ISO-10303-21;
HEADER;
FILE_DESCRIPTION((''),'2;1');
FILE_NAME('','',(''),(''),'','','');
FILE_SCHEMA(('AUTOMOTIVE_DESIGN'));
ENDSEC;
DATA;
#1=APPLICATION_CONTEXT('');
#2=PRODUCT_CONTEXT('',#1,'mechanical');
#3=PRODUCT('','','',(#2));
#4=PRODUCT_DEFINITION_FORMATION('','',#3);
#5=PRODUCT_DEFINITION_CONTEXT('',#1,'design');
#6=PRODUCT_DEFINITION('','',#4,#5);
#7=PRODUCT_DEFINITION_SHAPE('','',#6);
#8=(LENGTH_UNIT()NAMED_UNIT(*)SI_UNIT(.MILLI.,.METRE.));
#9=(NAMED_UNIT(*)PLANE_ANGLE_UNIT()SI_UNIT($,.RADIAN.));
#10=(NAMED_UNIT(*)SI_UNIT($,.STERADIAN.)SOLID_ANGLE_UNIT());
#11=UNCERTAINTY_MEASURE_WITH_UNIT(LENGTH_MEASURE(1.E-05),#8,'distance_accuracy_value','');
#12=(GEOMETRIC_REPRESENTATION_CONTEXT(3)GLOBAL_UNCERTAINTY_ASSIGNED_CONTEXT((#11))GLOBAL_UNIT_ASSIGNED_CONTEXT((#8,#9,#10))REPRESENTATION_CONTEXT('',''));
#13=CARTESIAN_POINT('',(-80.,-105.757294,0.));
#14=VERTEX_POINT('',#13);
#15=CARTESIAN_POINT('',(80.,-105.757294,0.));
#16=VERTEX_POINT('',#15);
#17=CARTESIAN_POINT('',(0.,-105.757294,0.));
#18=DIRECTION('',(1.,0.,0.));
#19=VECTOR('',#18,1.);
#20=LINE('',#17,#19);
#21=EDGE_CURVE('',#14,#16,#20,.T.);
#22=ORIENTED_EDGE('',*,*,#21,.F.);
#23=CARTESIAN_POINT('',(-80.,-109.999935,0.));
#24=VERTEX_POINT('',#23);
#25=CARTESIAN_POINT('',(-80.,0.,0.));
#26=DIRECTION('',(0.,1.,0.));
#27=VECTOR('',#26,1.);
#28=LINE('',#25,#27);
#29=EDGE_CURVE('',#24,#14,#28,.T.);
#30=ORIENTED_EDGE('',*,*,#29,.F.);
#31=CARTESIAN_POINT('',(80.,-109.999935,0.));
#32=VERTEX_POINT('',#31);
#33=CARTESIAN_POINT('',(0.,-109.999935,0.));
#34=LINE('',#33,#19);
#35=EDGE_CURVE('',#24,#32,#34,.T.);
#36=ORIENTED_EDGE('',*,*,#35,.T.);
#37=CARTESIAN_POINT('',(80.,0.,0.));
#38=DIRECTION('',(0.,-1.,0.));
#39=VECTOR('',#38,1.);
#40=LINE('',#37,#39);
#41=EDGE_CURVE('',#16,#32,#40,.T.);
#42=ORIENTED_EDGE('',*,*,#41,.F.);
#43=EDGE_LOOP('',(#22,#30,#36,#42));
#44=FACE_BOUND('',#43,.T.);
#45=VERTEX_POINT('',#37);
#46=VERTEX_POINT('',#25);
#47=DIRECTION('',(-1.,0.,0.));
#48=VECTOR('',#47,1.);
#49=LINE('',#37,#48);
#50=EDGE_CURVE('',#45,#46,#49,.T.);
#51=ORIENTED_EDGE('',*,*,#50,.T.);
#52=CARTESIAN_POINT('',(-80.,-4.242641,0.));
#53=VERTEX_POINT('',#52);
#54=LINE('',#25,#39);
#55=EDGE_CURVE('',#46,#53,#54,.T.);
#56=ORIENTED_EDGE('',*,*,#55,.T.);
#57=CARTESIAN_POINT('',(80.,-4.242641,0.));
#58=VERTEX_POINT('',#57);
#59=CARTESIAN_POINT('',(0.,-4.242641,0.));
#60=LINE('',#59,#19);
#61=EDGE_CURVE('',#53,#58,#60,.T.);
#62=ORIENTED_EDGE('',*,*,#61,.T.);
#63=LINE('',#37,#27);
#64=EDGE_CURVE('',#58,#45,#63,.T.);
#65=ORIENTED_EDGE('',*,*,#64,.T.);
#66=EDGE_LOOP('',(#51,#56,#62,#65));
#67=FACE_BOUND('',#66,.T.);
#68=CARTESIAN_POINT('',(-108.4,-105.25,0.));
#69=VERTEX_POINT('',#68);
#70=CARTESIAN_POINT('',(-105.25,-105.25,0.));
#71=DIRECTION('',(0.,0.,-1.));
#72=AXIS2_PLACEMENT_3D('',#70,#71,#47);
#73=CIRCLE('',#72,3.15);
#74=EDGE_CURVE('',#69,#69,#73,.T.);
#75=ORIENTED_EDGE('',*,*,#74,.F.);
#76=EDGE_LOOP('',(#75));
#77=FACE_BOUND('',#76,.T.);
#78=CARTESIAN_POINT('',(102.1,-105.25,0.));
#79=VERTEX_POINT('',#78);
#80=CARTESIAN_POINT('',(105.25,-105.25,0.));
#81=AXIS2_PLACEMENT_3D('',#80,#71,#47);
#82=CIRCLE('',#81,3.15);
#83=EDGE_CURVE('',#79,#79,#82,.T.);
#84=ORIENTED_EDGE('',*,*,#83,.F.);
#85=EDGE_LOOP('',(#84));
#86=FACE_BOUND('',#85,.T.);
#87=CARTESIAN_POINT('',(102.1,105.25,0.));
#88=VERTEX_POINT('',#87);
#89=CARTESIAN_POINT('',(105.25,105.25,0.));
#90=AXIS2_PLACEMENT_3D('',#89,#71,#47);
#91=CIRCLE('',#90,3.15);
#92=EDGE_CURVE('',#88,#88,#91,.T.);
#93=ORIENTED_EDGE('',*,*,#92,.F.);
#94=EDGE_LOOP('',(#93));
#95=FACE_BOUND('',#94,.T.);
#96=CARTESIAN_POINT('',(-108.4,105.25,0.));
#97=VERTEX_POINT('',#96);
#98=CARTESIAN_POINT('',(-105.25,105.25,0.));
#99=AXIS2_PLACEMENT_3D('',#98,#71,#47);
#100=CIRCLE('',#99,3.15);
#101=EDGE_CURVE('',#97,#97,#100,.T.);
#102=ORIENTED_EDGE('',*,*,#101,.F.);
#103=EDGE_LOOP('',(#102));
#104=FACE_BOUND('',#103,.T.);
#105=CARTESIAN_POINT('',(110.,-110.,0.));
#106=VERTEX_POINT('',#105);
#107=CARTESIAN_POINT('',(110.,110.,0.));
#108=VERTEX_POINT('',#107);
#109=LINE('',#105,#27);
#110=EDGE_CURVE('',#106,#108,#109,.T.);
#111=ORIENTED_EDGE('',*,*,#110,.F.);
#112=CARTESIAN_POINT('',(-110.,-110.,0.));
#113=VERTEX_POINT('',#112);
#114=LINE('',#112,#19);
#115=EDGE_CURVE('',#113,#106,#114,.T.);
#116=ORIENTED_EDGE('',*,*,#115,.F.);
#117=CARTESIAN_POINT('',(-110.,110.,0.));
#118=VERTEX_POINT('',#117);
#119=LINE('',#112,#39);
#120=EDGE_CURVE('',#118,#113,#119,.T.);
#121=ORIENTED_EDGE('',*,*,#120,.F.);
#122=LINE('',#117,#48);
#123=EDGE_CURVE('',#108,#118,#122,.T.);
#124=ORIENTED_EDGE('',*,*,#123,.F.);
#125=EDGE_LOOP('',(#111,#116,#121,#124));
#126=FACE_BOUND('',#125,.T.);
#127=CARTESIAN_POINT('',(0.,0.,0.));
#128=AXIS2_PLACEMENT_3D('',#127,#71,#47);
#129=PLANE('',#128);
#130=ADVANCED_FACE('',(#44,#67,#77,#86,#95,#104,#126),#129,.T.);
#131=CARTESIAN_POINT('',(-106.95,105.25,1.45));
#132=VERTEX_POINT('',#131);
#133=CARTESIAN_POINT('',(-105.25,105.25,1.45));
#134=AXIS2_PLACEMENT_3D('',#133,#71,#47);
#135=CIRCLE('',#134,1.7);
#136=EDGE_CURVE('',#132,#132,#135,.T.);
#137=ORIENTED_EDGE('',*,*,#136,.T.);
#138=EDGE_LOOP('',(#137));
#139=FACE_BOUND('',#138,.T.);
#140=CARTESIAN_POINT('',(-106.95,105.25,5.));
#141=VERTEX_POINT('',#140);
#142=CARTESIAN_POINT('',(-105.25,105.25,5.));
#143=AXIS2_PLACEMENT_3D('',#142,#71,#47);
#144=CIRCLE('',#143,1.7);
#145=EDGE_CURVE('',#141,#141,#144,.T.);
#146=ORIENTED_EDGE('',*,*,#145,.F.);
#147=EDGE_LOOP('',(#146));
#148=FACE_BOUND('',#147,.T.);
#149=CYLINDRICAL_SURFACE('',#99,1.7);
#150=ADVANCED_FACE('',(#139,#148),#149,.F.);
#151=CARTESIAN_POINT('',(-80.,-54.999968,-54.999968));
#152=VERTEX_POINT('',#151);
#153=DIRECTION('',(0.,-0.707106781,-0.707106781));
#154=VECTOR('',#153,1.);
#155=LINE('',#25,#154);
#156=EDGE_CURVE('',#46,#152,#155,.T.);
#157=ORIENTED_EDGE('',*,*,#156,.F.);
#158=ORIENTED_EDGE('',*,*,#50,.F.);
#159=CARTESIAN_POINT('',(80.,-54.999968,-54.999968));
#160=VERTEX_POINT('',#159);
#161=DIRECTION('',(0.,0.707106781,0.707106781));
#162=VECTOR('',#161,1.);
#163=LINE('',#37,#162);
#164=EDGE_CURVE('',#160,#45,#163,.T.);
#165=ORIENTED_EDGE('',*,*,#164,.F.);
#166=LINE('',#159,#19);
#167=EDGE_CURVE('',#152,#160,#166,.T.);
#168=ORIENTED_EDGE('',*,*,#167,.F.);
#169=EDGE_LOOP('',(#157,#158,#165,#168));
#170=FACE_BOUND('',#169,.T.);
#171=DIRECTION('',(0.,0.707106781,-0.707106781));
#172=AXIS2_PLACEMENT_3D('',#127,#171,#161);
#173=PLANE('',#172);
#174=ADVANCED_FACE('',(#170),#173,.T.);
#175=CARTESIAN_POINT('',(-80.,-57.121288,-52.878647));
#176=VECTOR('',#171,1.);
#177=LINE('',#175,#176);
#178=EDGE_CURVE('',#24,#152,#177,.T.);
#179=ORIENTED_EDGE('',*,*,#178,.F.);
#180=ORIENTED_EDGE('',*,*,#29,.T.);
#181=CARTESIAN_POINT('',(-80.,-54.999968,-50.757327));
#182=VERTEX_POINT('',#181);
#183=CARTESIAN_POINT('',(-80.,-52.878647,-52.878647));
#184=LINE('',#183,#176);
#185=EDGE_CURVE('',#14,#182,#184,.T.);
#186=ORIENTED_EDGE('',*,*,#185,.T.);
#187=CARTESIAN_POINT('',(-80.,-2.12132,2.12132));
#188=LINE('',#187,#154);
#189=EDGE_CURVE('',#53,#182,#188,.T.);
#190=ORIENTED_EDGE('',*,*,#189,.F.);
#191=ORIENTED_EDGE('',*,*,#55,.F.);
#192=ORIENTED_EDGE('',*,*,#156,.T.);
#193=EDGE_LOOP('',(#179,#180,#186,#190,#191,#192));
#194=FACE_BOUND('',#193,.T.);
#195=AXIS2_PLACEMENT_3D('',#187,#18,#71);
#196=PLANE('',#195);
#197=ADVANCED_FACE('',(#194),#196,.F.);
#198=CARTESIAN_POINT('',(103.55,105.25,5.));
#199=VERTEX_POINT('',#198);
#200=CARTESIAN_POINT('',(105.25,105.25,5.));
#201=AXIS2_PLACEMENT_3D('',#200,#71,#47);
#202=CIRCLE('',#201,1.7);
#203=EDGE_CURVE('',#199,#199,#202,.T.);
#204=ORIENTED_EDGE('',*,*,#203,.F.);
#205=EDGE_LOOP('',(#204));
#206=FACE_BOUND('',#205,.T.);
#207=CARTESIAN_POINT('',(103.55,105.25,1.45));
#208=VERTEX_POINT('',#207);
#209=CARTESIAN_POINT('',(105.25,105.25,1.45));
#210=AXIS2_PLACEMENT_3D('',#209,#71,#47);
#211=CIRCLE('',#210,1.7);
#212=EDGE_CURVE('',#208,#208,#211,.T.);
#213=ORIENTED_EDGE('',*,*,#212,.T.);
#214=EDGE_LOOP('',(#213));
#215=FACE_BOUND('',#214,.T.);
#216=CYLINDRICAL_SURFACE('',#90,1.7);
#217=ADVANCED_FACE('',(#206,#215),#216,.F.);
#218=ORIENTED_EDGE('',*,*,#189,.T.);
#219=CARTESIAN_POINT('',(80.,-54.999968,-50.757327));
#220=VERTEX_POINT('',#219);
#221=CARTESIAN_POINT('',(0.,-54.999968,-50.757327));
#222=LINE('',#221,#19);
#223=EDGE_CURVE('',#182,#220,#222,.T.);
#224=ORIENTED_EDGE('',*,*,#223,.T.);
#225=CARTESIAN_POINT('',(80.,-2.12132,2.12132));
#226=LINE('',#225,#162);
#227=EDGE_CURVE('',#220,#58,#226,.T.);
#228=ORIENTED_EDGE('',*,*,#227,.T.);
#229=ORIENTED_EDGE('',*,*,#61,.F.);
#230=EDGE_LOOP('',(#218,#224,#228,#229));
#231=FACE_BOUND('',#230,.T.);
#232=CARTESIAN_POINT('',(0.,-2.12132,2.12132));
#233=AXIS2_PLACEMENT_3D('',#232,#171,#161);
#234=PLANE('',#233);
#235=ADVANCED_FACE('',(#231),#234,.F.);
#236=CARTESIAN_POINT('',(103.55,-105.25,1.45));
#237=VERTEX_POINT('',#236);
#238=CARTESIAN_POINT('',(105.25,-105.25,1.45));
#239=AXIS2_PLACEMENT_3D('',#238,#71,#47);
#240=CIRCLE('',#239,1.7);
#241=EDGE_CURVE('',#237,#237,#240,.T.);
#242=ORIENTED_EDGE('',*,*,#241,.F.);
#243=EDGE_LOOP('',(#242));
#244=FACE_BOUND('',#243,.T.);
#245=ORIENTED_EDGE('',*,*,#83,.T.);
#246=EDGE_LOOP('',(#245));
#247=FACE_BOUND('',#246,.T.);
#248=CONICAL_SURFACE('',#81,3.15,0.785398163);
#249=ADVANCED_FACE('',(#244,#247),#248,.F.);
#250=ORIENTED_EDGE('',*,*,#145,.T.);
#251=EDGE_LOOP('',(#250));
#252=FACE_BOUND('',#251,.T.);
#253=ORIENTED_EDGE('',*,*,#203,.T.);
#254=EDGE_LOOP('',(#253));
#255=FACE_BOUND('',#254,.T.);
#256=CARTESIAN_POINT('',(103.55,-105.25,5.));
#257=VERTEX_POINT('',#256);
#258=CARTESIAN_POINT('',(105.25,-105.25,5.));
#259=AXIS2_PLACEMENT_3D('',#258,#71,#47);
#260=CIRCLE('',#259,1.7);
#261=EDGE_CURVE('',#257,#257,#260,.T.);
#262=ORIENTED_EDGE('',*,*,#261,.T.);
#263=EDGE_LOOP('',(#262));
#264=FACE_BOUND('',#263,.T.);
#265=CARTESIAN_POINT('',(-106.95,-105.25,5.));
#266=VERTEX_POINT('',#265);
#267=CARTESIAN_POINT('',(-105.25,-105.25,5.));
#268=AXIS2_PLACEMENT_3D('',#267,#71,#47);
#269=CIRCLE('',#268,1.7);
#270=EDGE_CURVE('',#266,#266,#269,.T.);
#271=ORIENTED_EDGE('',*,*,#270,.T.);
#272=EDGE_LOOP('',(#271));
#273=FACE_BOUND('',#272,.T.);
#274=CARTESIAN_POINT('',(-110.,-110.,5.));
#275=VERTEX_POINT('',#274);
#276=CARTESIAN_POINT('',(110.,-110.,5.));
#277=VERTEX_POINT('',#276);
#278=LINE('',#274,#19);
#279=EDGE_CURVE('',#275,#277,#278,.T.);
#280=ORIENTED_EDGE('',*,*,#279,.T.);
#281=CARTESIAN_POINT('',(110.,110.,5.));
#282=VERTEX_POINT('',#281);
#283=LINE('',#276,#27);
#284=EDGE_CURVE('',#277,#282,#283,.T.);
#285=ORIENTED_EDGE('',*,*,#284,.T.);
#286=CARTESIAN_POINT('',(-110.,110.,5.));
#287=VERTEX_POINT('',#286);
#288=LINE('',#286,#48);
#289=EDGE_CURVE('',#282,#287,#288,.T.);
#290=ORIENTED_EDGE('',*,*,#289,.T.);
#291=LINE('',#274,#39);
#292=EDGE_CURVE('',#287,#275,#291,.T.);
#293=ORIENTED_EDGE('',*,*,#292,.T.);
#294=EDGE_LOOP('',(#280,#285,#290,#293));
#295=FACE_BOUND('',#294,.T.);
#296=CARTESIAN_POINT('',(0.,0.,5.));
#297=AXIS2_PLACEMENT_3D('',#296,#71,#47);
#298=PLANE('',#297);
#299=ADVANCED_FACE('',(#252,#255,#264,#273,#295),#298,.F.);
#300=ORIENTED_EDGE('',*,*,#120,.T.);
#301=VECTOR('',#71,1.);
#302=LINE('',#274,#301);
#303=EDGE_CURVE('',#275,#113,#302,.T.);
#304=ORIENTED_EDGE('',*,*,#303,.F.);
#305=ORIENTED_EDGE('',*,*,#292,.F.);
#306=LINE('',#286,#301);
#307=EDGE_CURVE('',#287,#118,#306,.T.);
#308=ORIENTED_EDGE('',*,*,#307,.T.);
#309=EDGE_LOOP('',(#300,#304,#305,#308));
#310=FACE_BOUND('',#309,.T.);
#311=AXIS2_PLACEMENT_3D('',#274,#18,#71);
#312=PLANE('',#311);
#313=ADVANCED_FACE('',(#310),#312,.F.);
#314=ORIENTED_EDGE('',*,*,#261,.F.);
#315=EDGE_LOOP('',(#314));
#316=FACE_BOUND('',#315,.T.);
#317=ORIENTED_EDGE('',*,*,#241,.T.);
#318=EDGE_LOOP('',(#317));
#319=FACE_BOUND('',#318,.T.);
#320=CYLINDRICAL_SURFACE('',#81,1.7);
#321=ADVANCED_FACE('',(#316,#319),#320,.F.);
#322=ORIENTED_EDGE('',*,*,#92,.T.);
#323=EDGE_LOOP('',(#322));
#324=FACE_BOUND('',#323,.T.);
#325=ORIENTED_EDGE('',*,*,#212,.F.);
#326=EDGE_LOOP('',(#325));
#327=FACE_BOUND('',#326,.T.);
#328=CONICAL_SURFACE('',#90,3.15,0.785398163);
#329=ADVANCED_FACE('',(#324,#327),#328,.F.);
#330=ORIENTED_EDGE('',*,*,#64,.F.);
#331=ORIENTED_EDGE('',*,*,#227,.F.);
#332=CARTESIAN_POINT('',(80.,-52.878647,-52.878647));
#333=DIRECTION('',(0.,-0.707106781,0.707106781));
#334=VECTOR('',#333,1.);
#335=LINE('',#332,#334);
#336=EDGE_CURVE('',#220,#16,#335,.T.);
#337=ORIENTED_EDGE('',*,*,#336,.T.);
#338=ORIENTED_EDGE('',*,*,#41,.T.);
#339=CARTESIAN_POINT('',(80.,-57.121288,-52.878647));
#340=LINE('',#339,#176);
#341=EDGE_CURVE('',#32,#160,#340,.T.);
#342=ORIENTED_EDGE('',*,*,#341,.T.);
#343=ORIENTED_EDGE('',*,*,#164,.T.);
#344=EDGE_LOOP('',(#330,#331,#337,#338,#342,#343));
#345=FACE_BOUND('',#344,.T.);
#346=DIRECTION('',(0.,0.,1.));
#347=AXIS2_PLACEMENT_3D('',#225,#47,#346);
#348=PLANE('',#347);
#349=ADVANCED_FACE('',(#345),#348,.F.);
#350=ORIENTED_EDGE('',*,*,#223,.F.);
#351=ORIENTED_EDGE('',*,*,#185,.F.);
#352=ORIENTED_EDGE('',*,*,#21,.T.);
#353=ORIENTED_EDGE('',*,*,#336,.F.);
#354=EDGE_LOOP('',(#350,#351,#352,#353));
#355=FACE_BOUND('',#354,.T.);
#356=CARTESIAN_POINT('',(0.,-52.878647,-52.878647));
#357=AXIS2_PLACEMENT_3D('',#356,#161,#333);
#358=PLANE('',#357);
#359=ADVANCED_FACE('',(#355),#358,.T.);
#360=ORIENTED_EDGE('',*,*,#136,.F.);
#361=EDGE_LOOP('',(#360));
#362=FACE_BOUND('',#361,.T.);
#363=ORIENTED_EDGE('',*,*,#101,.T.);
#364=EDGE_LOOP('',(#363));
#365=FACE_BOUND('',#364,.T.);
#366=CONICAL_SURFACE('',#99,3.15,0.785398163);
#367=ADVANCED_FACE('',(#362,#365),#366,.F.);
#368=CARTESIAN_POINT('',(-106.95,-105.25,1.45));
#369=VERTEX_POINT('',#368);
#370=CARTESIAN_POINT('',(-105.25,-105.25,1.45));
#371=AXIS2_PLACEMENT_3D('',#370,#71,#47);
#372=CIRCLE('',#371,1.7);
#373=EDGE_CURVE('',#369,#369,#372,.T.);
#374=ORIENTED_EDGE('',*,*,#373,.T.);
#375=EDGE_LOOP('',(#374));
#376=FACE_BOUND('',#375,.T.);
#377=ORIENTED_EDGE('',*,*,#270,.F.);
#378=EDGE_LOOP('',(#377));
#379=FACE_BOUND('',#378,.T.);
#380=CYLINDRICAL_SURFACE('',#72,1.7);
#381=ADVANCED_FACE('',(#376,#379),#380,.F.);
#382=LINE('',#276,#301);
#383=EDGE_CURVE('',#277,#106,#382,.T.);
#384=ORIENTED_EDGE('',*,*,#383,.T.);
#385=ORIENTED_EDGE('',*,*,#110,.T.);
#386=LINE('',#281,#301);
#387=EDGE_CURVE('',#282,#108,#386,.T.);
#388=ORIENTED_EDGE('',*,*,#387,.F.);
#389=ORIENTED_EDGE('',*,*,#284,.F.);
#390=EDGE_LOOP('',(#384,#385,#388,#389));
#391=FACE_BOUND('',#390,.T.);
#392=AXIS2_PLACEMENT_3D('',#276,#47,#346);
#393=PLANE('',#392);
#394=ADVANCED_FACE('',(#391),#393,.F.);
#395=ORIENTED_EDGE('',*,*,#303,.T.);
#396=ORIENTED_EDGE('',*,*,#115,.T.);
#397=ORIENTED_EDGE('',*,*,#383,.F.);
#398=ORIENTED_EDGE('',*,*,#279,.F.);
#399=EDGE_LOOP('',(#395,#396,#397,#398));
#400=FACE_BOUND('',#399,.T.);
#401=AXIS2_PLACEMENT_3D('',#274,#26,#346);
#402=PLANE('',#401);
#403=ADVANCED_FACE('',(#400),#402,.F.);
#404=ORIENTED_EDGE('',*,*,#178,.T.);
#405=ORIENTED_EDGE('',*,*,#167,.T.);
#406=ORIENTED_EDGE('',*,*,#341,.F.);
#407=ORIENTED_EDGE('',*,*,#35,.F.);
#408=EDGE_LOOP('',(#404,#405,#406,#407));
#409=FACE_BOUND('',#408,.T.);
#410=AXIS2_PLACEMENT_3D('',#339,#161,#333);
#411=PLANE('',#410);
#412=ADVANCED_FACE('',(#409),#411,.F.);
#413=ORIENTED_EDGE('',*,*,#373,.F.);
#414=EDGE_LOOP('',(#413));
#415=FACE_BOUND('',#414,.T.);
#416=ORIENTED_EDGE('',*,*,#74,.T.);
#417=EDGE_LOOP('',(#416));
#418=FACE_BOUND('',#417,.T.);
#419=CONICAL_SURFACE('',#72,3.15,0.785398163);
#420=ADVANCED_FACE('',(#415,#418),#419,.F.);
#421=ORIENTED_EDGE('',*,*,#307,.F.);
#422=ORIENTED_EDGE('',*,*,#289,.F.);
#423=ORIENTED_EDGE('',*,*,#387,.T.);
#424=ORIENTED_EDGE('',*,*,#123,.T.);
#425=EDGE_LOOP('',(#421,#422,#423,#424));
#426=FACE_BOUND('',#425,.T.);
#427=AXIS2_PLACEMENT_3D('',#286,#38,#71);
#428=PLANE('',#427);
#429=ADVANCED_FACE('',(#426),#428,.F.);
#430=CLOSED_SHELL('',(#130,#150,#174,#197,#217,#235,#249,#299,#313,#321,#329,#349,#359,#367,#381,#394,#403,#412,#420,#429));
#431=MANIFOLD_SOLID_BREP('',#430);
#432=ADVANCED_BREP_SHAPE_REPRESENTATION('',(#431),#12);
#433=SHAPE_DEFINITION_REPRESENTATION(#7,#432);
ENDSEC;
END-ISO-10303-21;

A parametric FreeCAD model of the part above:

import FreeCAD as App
import Part
import Sketcher
from FreeCAD import Vector
Q = App.Units.Quantity

doc = App.newDocument("Part")
body = doc.addObject("PartDesign::Body", "Body")

sketch1 = body.newObject("Sketcher::SketchObject", "Sketch")
sketch1.AttachmentSupport = (doc.getObject("XY_Plane"), [""])
sketch1.MapMode = "FlatFace"
sketch1.addGeometry(Part.LineSegment(Vector(-110, 110, 0), Vector(-110, -110, 0)), False)
sketch1.addGeometry(Part.LineSegment(Vector(-110, -110, 0), Vector(110, -110, 0)), False)
sketch1.addGeometry(Part.LineSegment(Vector(110, -110, 0), Vector(110, 110, 0)), False)
sketch1.addGeometry(Part.LineSegment(Vector(110, 110, 0), Vector(-110, 110, 0)), False)
sketch1.addConstraint(Sketcher.Constraint("Coincident", 0, 2, 1, 1))
sketch1.addConstraint(Sketcher.Constraint("Coincident", 1, 2, 2, 1))
sketch1.addConstraint(Sketcher.Constraint("Coincident", 2, 2, 3, 1))
sketch1.addConstraint(Sketcher.Constraint("Coincident", 3, 2, 0, 1))
sketch1.addConstraint(Sketcher.Constraint("Vertical", 0))
sketch1.addConstraint(Sketcher.Constraint("Horizontal", 1))
sketch1.addConstraint(Sketcher.Constraint("Vertical", 2))
sketch1.addConstraint(Sketcher.Constraint("Horizontal", 3))
sketch1.addConstraint(Sketcher.Constraint("Symmetric", 0, 2, 2, 2, -1, 1))
sketch1.addConstraint(Sketcher.Constraint("Equal", 3, 0))
sketch1.addConstraint(Sketcher.Constraint("DistanceX", 1, 1, 1, 2, Q("220 mm")))
pad1 = body.newObject("PartDesign::Pad", "Pad")
pad1.Profile = sketch1
pad1.Length = 5

sketch2 = body.newObject("Sketcher::SketchObject", "Sketch001")
sketch2.AttachmentSupport = (doc.getObject("XY_Plane"), [""])
sketch2.MapMode = "FlatFace"
sketch2.addGeometry(Part.Circle(Vector(105.2, -105.2, 0), Vector(0, 0, 1), 1.7), False)
sketch2.addConstraint(Sketcher.Constraint("Diameter", 0, Q("3.4 mm")))
sketch2.addConstraint(Sketcher.Constraint("DistanceX", -1, 1, 0, 3, Q("105.25 mm")))
sketch2.addConstraint(Sketcher.Constraint("DistanceY", 0, 3, -1, 1, Q("105.25 mm")))
doc.recompute()
hole = body.newObject("PartDesign::Hole", "Hole")
hole.Profile = sketch2
hole.ThreadType = "None"
hole.Diameter = 3.4
hole.DepthType = "ThroughAll"
hole.HoleCutType = "Countersink"
hole.HoleCutDiameter = 6.3
hole.HoleCutCountersinkAngle = 90
hole.Reversed = True
doc.recompute()

mirrored = body.newObject("PartDesign::Mirrored", "Mirrored")
mirrored.Originals = [hole]
mirrored.MirrorPlane = (doc.getObject("XZ_Plane"), [""])
body.Tip = mirrored
doc.recompute()

mirrored2 = body.newObject("PartDesign::Mirrored", "Mirrored001")
mirrored2.Originals = [hole]
mirrored2.MirrorPlane = (doc.getObject("YZ_Plane"), [""])
body.Tip = mirrored2

sketch3 = body.newObject("Sketcher::SketchObject", "Sketch002")
sketch3.AttachmentSupport = (doc.getObject("XY_Plane"), [""])
sketch3.MapMode = "FlatFace"
sketch3.addGeometry(Part.Circle(Vector(-105.2, 105.2, 0), Vector(0, 0, 1), 1.7), False)
sketch3.addConstraint(Sketcher.Constraint("Diameter", 0, Q("3.4 mm")))
sketch3.addConstraint(Sketcher.Constraint("DistanceX", 0, 3, -1, 1, Q("105.25 mm")))
sketch3.addConstraint(Sketcher.Constraint("DistanceY", -1, 1, 0, 3, Q("105.25 mm")))
doc.recompute()
hole2 = body.newObject("PartDesign::Hole", "Hole001")
hole2.Profile = sketch3
hole2.ThreadType = "None"
hole2.Diameter = 3.4
hole2.DepthType = "ThroughAll"
hole2.HoleCutType = "Countersink"
hole2.HoleCutDiameter = 6.3
hole2.HoleCutCountersinkAngle = 90
hole2.Reversed = True

sketch4 = body.newObject("Sketcher::SketchObject", "Sketch003")
sketch4.Placement = App.Placement(Vector(0, 0, 0), App.Rotation(Vector(-1, 0, 0), Vector(0, -0.707106781, -0.707106781), Vector(0, -0.707106781, 0.707106781), "ZXY"))
sketch4.addGeometry(Part.LineSegment(Vector(-80, 78, 0), Vector(-80, 0, 0)), False)
sketch4.addGeometry(Part.LineSegment(Vector(-80, 0, 0), Vector(80, 0, 0)), False)
sketch4.addGeometry(Part.LineSegment(Vector(80, 0, 0), Vector(80, 78, 0)), False)
sketch4.addGeometry(Part.LineSegment(Vector(80, 78, 0), Vector(-80, 78, 0)), False)
sketch4.addConstraint(Sketcher.Constraint("Coincident", 0, 2, 1, 1))
sketch4.addConstraint(Sketcher.Constraint("Coincident", 1, 2, 2, 1))
sketch4.addConstraint(Sketcher.Constraint("Coincident", 2, 2, 3, 1))
sketch4.addConstraint(Sketcher.Constraint("Coincident", 3, 2, 0, 1))
sketch4.addConstraint(Sketcher.Constraint("Vertical", 0))
sketch4.addConstraint(Sketcher.Constraint("Horizontal", 1))
sketch4.addConstraint(Sketcher.Constraint("Vertical", 2))
sketch4.addConstraint(Sketcher.Constraint("Horizontal", 3))
sketch4.addConstraint(Sketcher.Constraint("Symmetric", 0, 2, 1, 2, -1, 1))
sketch4.addConstraint(Sketcher.Constraint("DistanceX", 1, 1, 1, 2, Q("160 mm")))
sketch4.addConstraint(Sketcher.Constraint("DistanceY", 0, 2, 0, 1, Q("77.7817 mm")))
pad2 = body.newObject("PartDesign::Pad", "Pad001")
pad2.Profile = sketch4
pad2.Length = 3

sketch5 = body.newObject("Sketcher::SketchObject", "Sketch004")
sketch5.Placement = App.Placement(Vector(0, -54.999968, -54.999968), App.Rotation(Vector(1, 0, 0), Vector(0, -0.707106781, 0.707106781), Vector(0, -0.707106781, -0.707106781), "ZXY"))
sketch5.addGeometry(Part.LineSegment(Vector(-80, 78, 0), Vector(-80, 0, 0)), False)
sketch5.addGeometry(Part.LineSegment(Vector(-80, 0, 0), Vector(80, 0, 0)), False)
sketch5.addGeometry(Part.LineSegment(Vector(80, 0, 0), Vector(80, 78, 0)), False)
sketch5.addGeometry(Part.LineSegment(Vector(80, 78, 0), Vector(-80, 78, 0)), False)
sketch5.addConstraint(Sketcher.Constraint("Coincident", 0, 2, 1, 1))
sketch5.addConstraint(Sketcher.Constraint("Coincident", 1, 2, 2, 1))
sketch5.addConstraint(Sketcher.Constraint("Coincident", 2, 2, 3, 1))
sketch5.addConstraint(Sketcher.Constraint("Coincident", 3, 2, 0, 1))
sketch5.addConstraint(Sketcher.Constraint("Vertical", 0))
sketch5.addConstraint(Sketcher.Constraint("Horizontal", 1))
sketch5.addConstraint(Sketcher.Constraint("Vertical", 2))
sketch5.addConstraint(Sketcher.Constraint("Horizontal", 3))
sketch5.addConstraint(Sketcher.Constraint("Symmetric", 0, 2, 1, 2, -1, 1))
sketch5.addConstraint(Sketcher.Constraint("DistanceX", 1, 1, 1, 2, Q("160 mm")))
sketch5.addConstraint(Sketcher.Constraint("DistanceY", 0, 2, 0, 1, Q("77.781746 mm")))
pad3 = body.newObject("PartDesign::Pad", "Pad002")
pad3.Profile = sketch5
pad3.Length = 3
pad3.Reversed = True

doc.recompute()
